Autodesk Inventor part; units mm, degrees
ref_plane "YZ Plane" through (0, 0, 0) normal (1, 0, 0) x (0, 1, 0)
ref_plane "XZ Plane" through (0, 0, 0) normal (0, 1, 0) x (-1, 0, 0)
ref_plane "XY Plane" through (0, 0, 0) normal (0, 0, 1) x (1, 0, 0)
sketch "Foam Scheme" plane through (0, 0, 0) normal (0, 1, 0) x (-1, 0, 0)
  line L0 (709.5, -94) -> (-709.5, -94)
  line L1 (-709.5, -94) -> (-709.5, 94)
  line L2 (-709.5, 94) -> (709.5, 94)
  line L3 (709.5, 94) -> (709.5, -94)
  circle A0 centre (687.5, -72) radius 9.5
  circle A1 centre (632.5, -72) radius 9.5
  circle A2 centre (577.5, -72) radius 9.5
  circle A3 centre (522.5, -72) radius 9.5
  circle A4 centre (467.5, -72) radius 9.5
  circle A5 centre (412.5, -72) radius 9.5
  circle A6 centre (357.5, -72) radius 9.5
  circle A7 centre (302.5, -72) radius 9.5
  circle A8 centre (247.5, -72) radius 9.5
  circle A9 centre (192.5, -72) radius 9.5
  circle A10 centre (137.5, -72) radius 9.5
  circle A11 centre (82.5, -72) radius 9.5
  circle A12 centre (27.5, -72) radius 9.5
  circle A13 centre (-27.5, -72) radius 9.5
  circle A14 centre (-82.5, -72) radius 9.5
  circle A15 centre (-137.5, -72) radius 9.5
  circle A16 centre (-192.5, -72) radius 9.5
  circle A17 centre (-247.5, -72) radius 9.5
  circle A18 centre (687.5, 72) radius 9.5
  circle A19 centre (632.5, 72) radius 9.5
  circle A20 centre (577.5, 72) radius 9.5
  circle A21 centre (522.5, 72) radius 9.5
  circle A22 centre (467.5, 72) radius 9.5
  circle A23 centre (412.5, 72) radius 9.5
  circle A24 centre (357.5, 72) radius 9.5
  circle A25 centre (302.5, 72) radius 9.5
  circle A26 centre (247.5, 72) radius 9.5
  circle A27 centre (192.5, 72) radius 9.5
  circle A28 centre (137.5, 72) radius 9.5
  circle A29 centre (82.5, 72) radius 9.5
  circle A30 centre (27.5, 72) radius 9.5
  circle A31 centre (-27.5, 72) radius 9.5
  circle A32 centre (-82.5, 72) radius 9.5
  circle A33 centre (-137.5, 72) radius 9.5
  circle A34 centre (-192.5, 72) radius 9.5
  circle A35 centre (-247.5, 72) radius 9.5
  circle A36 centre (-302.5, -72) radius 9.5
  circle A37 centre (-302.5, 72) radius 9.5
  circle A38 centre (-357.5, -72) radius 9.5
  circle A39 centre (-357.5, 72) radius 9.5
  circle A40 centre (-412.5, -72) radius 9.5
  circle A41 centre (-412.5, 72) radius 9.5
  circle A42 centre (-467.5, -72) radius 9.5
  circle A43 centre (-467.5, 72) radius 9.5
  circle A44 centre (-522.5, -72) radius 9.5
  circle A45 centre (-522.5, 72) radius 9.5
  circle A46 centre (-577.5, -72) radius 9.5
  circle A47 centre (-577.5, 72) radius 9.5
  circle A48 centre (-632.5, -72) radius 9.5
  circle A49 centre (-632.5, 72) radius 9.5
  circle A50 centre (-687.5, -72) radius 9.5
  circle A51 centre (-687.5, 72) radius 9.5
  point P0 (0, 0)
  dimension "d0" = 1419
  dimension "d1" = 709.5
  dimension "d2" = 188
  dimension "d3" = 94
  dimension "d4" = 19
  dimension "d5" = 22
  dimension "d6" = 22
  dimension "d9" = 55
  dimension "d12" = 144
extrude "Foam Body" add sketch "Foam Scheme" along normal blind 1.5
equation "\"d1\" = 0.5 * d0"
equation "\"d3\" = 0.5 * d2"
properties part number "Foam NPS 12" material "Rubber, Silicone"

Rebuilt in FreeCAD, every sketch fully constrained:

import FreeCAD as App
import Part
import Sketcher
Q = App.Units.Quantity

doc = App.newDocument("Part")
params = doc.addObject("Spreadsheet::Sheet", "Params")
for row, (alias, value) in enumerate([
    ("sketch1_diameter", "19 mm"),
    ("sketch1_width", "1419 mm"),
    ("sketch1_height", "188 mm"),
    ("pad1_length", "1.5 mm"),
], start=1):
    params.set(f"A{row}", alias)
    params.set(f"B{row}", "=" + value)
    params.setAlias(f"B{row}", alias)

body = doc.addObject("PartDesign::Body", "Body")

sketch1 = doc.addObject("Sketcher::SketchObject", "Sketch")
body.addObject(sketch1)
sketch1.AttachmentSupport = (doc.XZ_Plane, [""])
sketch1.MapMode = "FlatFace"
sketch1.addGeometry([
    Part.LineSegment(App.Vector(710, -94, 0), App.Vector(-710, -94, 0)),
    Part.LineSegment(App.Vector(-710, -94, 0), App.Vector(-710, 94, 0)),
    Part.LineSegment(App.Vector(-710, 94, 0), App.Vector(710, 94, 0)),
    Part.LineSegment(App.Vector(710, 94, 0), App.Vector(710, -94, 0)),
    Part.Circle(App.Vector(688, -72, 0), App.Vector(0, 0, 1), 10),
    Part.Circle(App.Vector(632, -72, 0), App.Vector(0, 0, 1), 10),
    Part.Circle(App.Vector(578, -72, 0), App.Vector(0, 0, 1), 10),
    Part.Circle(App.Vector(522, -72, 0), App.Vector(0, 0, 1), 10),
    Part.Circle(App.Vector(468, -72, 0), App.Vector(0, 0, 1), 10),
    Part.Circle(App.Vector(412, -72, 0), App.Vector(0, 0, 1), 10),
    Part.Circle(App.Vector(358, -72, 0), App.Vector(0, 0, 1), 10),
    Part.Circle(App.Vector(302, -72, 0), App.Vector(0, 0, 1), 10),
    Part.Circle(App.Vector(248, -72, 0), App.Vector(0, 0, 1), 10),
    Part.Circle(App.Vector(192, -72, 0), App.Vector(0, 0, 1), 10),
    Part.Circle(App.Vector(138, -72, 0), App.Vector(0, 0, 1), 10),
    Part.Circle(App.Vector(82, -72, 0), App.Vector(0, 0, 1), 10),
    Part.Circle(App.Vector(28, -72, 0), App.Vector(0, 0, 1), 10),
    Part.Circle(App.Vector(-28, -72, 0), App.Vector(0, 0, 1), 10),
    Part.Circle(App.Vector(-82, -72, 0), App.Vector(0, 0, 1), 10),
    Part.Circle(App.Vector(-138, -72, 0), App.Vector(0, 0, 1), 10),
    Part.Circle(App.Vector(-192, -72, 0), App.Vector(0, 0, 1), 10),
    Part.Circle(App.Vector(-248, -72, 0), App.Vector(0, 0, 1), 10),
    Part.Circle(App.Vector(-302, -72, 0), App.Vector(0, 0, 1), 10),
    Part.Circle(App.Vector(-358, -72, 0), App.Vector(0, 0, 1), 10),
    Part.Circle(App.Vector(-412, -72, 0), App.Vector(0, 0, 1), 10),
    Part.Circle(App.Vector(-468, -72, 0), App.Vector(0, 0, 1), 10),
    Part.Circle(App.Vector(-522, -72, 0), App.Vector(0, 0, 1), 10),
    Part.Circle(App.Vector(-578, -72, 0), App.Vector(0, 0, 1), 10),
    Part.Circle(App.Vector(-632, -72, 0), App.Vector(0, 0, 1), 10),
    Part.Circle(App.Vector(-688, -72, 0), App.Vector(0, 0, 1), 10),
    Part.Circle(App.Vector(688, 72, 0), App.Vector(0, 0, 1), 10),
    Part.Circle(App.Vector(632, 72, 0), App.Vector(0, 0, 1), 10),
    Part.Circle(App.Vector(578, 72, 0), App.Vector(0, 0, 1), 10),
    Part.Circle(App.Vector(522, 72, 0), App.Vector(0, 0, 1), 10),
    Part.Circle(App.Vector(468, 72, 0), App.Vector(0, 0, 1), 10),
    Part.Circle(App.Vector(412, 72, 0), App.Vector(0, 0, 1), 10),
    Part.Circle(App.Vector(358, 72, 0), App.Vector(0, 0, 1), 10),
    Part.Circle(App.Vector(302, 72, 0), App.Vector(0, 0, 1), 10),
    Part.Circle(App.Vector(248, 72, 0), App.Vector(0, 0, 1), 10),
    Part.Circle(App.Vector(192, 72, 0), App.Vector(0, 0, 1), 10),
    Part.Circle(App.Vector(138, 72, 0), App.Vector(0, 0, 1), 10),
    Part.Circle(App.Vector(82, 72, 0), App.Vector(0, 0, 1), 10),
    Part.Circle(App.Vector(28, 72, 0), App.Vector(0, 0, 1), 10),
    Part.Circle(App.Vector(-28, 72, 0), App.Vector(0, 0, 1), 10),
    Part.Circle(App.Vector(-82, 72, 0), App.Vector(0, 0, 1), 10),
    Part.Circle(App.Vector(-138, 72, 0), App.Vector(0, 0, 1), 10),
    Part.Circle(App.Vector(-192, 72, 0), App.Vector(0, 0, 1), 10),
    Part.Circle(App.Vector(-248, 72, 0), App.Vector(0, 0, 1), 10),
    Part.Circle(App.Vector(-302, 72, 0), App.Vector(0, 0, 1), 10),
    Part.Circle(App.Vector(-358, 72, 0), App.Vector(0, 0, 1), 10),
    Part.Circle(App.Vector(-412, 72, 0), App.Vector(0, 0, 1), 10),
    Part.Circle(App.Vector(-468, 72, 0), App.Vector(0, 0, 1), 10),
    Part.Circle(App.Vector(-522, 72, 0), App.Vector(0, 0, 1), 10),
    Part.Circle(App.Vector(-578, 72, 0), App.Vector(0, 0, 1), 10),
    Part.Circle(App.Vector(-632, 72, 0), App.Vector(0, 0, 1), 10),
    Part.Circle(App.Vector(-688, 72, 0), App.Vector(0, 0, 1), 10),
], False)
sketch1.addConstraint([
    Sketcher.Constraint("Coincident", 0, 2, 1, 1),
    Sketcher.Constraint("Coincident", 1, 2, 2, 1),
    Sketcher.Constraint("Coincident", 2, 2, 3, 1),
    Sketcher.Constraint("Coincident", 3, 2, 0, 1),
    Sketcher.Constraint("Horizontal", 0),
    Sketcher.Constraint("Vertical", 1),
    Sketcher.Constraint("Horizontal", 2),
    Sketcher.Constraint("Vertical", 3),
    Sketcher.Constraint("Equal", 4, 5),
    Sketcher.Constraint("Equal", 5, 6),
    Sketcher.Constraint("Equal", 6, 7),
    Sketcher.Constraint("Equal", 7, 8),
    Sketcher.Constraint("Equal", 8, 9),
    Sketcher.Constraint("Equal", 9, 10),
    Sketcher.Constraint("Equal", 10, 11),
    Sketcher.Constraint("Equal", 11, 12),
    Sketcher.Constraint("Equal", 12, 13),
    Sketcher.Constraint("Equal", 13, 14),
    Sketcher.Constraint("Equal", 14, 15),
    Sketcher.Constraint("Equal", 15, 16),
    Sketcher.Constraint("Equal", 16, 17),
    Sketcher.Constraint("Equal", 17, 18),
    Sketcher.Constraint("Equal", 18, 19),
    Sketcher.Constraint("Equal", 19, 20),
    Sketcher.Constraint("Equal", 20, 21),
    Sketcher.Constraint("Equal", 21, 22),
    Sketcher.Constraint("Equal", 22, 23),
    Sketcher.Constraint("Equal", 23, 24),
    Sketcher.Constraint("Equal", 24, 25),
    Sketcher.Constraint("Equal", 25, 26),
    Sketcher.Constraint("Equal", 26, 27),
    Sketcher.Constraint("Equal", 27, 28),
    Sketcher.Constraint("Equal", 28, 29),
    Sketcher.Constraint("Equal", 29, 30),
    Sketcher.Constraint("Equal", 30, 31),
    Sketcher.Constraint("Equal", 31, 32),
    Sketcher.Constraint("Equal", 32, 33),
    Sketcher.Constraint("Equal", 33, 34),
    Sketcher.Constraint("Equal", 34, 35),
    Sketcher.Constraint("Equal", 35, 36),
    Sketcher.Constraint("Equal", 36, 37),
    Sketcher.Constraint("Equal", 37, 38),
    Sketcher.Constraint("Equal", 38, 39),
    Sketcher.Constraint("Equal", 39, 40),
    Sketcher.Constraint("Equal", 40, 41),
    Sketcher.Constraint("Equal", 41, 42),
    Sketcher.Constraint("Equal", 42, 43),
    Sketcher.Constraint("Equal", 43, 44),
    Sketcher.Constraint("Equal", 44, 45),
    Sketcher.Constraint("Equal", 45, 46),
    Sketcher.Constraint("Equal", 46, 47),
    Sketcher.Constraint("Equal", 47, 48),
    Sketcher.Constraint("Equal", 48, 49),
    Sketcher.Constraint("Equal", 49, 50),
    Sketcher.Constraint("Equal", 50, 51),
    Sketcher.Constraint("Equal", 51, 52),
    Sketcher.Constraint("Equal", 52, 53),
    Sketcher.Constraint("Equal", 53, 54),
    Sketcher.Constraint("Equal", 54, 55),
    Sketcher.Constraint("Symmetric", 29, 3, 30, 3, -1, 1),
    Sketcher.Constraint("Symmetric", 28, 3, 31, 3, -1, 1),
    Sketcher.Constraint("Symmetric", 27, 3, 32, 3, -1, 1),
    Sketcher.Constraint("Symmetric", 26, 3, 33, 3, -1, 1),
    Sketcher.Constraint("Symmetric", 25, 3, 34, 3, -1, 1),
    Sketcher.Constraint("Symmetric", 24, 3, 35, 3, -1, 1),
    Sketcher.Constraint("Symmetric", 23, 3, 36, 3, -1, 1),
    Sketcher.Constraint("Symmetric", 22, 3, 37, 3, -1, 1),
    Sketcher.Constraint("Symmetric", 21, 3, 38, 3, -1, 1),
    Sketcher.Constraint("Symmetric", 20, 3, 39, 3, -1, 1),
    Sketcher.Constraint("Symmetric", 19, 3, 40, 3, -1, 1),
    Sketcher.Constraint("Symmetric", 18, 3, 41, 3, -1, 1),
    Sketcher.Constraint("Symmetric", 17, 3, 42, 3, -1, 1),
    Sketcher.Constraint("Symmetric", 16, 3, 43, 3, -1, 1),
    Sketcher.Constraint("Symmetric", 15, 3, 44, 3, -1, 1),
    Sketcher.Constraint("Symmetric", 14, 3, 45, 3, -1, 1),
    Sketcher.Constraint("Symmetric", 13, 3, 46, 3, -1, 1),
    Sketcher.Constraint("Symmetric", 12, 3, 47, 3, -1, 1),
    Sketcher.Constraint("Symmetric", 11, 3, 48, 3, -1, 1),
    Sketcher.Constraint("Symmetric", 10, 3, 49, 3, -1, 1),
    Sketcher.Constraint("Symmetric", 9, 3, 50, 3, -1, 1),
    Sketcher.Constraint("Symmetric", 8, 3, 51, 3, -1, 1),
    Sketcher.Constraint("Symmetric", 7, 3, 52, 3, -1, 1),
    Sketcher.Constraint("Symmetric", 6, 3, 53, 3, -1, 1),
    Sketcher.Constraint("Symmetric", 5, 3, 54, 3, -1, 1),
    Sketcher.Constraint("Symmetric", 4, 3, 55, 3, -1, 1),
    Sketcher.Constraint("Symmetric", 0, 2, 2, 2, -1, 1),
    Sketcher.Constraint("Symmetric", 16, 3, 17, 3, -2),
    Sketcher.Constraint("Symmetric", 15, 3, 18, 3, -2),
    Sketcher.Constraint("Symmetric", 14, 3, 19, 3, -2),
    Sketcher.Constraint("Symmetric", 13, 3, 20, 3, -2),
    Sketcher.Constraint("Symmetric", 12, 3, 21, 3, -2),
    Sketcher.Constraint("Symmetric", 11, 3, 22, 3, -2),
    Sketcher.Constraint("Symmetric", 10, 3, 23, 3, -2),
    Sketcher.Constraint("Symmetric", 9, 3, 24, 3, -2),
    Sketcher.Constraint("Symmetric", 8, 3, 25, 3, -2),
    Sketcher.Constraint("Symmetric", 7, 3, 26, 3, -2),
    Sketcher.Constraint("Symmetric", 6, 3, 27, 3, -2),
    Sketcher.Constraint("Symmetric", 5, 3, 28, 3, -2),
    Sketcher.Constraint("Symmetric", 4, 3, 29, 3, -2),
    Sketcher.Constraint("Horizontal", 4, 3, 5, 3),
    Sketcher.Constraint("Horizontal", 5, 3, 6, 3),
    Sketcher.Constraint("Horizontal", 6, 3, 7, 3),
    Sketcher.Constraint("Horizontal", 7, 3, 8, 3),
    Sketcher.Constraint("Horizontal", 8, 3, 9, 3),
    Sketcher.Constraint("Horizontal", 9, 3, 10, 3),
    Sketcher.Constraint("Horizontal", 10, 3, 11, 3),
    Sketcher.Constraint("Horizontal", 11, 3, 12, 3),
    Sketcher.Constraint("Horizontal", 12, 3, 13, 3),
    Sketcher.Constraint("Horizontal", 13, 3, 14, 3),
    Sketcher.Constraint("Horizontal", 14, 3, 15, 3),
    Sketcher.Constraint("Horizontal", 15, 3, 16, 3),
    Sketcher.Constraint("Diameter", 4, Q("19 mm")),
    Sketcher.Constraint("DistanceX", 0, 2, 0, 1, Q("1419 mm")),
    Sketcher.Constraint("DistanceY", 1, 1, 1, 2, Q("188 mm")),
    Sketcher.Constraint("DistanceX", 5, 3, 4, 3, Q("55 mm")),
    Sketcher.Constraint("DistanceX", 6, 3, 5, 3, Q("55 mm")),
    Sketcher.Constraint("DistanceX", 7, 3, 6, 3, Q("55 mm")),
    Sketcher.Constraint("DistanceX", 8, 3, 7, 3, Q("55 mm")),
    Sketcher.Constraint("DistanceX", 9, 3, 8, 3, Q("55 mm")),
    Sketcher.Constraint("DistanceX", 10, 3, 9, 3, Q("55 mm")),
    Sketcher.Constraint("DistanceX", 11, 3, 10, 3, Q("55 mm")),
    Sketcher.Constraint("DistanceX", 12, 3, 11, 3, Q("55 mm")),
    Sketcher.Constraint("DistanceX", 13, 3, 12, 3, Q("55 mm")),
    Sketcher.Constraint("DistanceX", 14, 3, 13, 3, Q("55 mm")),
    Sketcher.Constraint("DistanceX", 15, 3, 14, 3, Q("55 mm")),
    Sketcher.Constraint("DistanceX", 16, 3, 15, 3, Q("55 mm")),
    Sketcher.Constraint("DistanceX", 17, 3, 16, 3, Q("55 mm")),
    Sketcher.Constraint("DistanceY", 4, 3, 30, 3, Q("144 mm")),
])
sketch1.setExpression("Constraints[111]", "Params.sketch1_diameter")
sketch1.setExpression("Constraints[112]", "Params.sketch1_width")
sketch1.setExpression("Constraints[113]", "Params.sketch1_height")
pad1 = doc.addObject("PartDesign::Pad", "Pad")
body.addObject(pad1)
pad1.Profile = sketch1
pad1.setExpression("Length", "Params.pad1_length")
pad1.Reversed = True

doc.recompute()
